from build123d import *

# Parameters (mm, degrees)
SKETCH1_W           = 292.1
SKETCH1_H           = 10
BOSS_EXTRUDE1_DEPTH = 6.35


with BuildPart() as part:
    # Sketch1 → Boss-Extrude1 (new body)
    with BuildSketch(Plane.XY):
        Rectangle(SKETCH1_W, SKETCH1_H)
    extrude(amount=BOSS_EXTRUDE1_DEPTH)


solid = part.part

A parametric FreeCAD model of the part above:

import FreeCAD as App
import Part
import Sketcher
from FreeCAD import Vector
Q = App.Units.Quantity

doc = App.newDocument("Part")
body = doc.addObject("PartDesign::Body", "Body")

# Sketch on XY plane
sketch1 = body.newObject("Sketcher::SketchObject", "Sketch")
sketch1.AttachmentSupport = (doc.getObject("XY_Plane"), [""])
sketch1.MapMode = "FlatFace"
sketch1.addGeometry([
    Part.LineSegment(Vector(-146, 5, 0), Vector(-146, -5, 0)),
    Part.LineSegment(Vector(-146, -5, 0), Vector(146, -5, 0)),
    Part.LineSegment(Vector(146, -5, 0), Vector(146, 5, 0)),
    Part.LineSegment(Vector(146, 5, 0), Vector(-146, 5, 0)),
], False)
sketch1.addConstraint([
    Sketcher.Constraint("Coincident", 0, 2, 1, 1),
    Sketcher.Constraint("Coincident", 1, 2, 2, 1),
    Sketcher.Constraint("Coincident", 2, 2, 3, 1),
    Sketcher.Constraint("Coincident", 3, 2, 0, 1),
    Sketcher.Constraint("Vertical", 0),
    Sketcher.Constraint("Horizontal", 1),
    Sketcher.Constraint("Vertical", 2),
    Sketcher.Constraint("Horizontal", 3),
    Sketcher.Constraint("Symmetric", 0, 2, 2, 2, -1, 1),
    Sketcher.Constraint("DistanceX", 1, 1, 1, 2, Q("11.5 in")),
    Sketcher.Constraint("DistanceY", 0, 2, 0, 1, Q("10 mm")),
])
pad1 = body.newObject("PartDesign::Pad", "Pad")
pad1.Profile = sketch1
pad1.Length = Q("0.25 in")

doc.recompute()
